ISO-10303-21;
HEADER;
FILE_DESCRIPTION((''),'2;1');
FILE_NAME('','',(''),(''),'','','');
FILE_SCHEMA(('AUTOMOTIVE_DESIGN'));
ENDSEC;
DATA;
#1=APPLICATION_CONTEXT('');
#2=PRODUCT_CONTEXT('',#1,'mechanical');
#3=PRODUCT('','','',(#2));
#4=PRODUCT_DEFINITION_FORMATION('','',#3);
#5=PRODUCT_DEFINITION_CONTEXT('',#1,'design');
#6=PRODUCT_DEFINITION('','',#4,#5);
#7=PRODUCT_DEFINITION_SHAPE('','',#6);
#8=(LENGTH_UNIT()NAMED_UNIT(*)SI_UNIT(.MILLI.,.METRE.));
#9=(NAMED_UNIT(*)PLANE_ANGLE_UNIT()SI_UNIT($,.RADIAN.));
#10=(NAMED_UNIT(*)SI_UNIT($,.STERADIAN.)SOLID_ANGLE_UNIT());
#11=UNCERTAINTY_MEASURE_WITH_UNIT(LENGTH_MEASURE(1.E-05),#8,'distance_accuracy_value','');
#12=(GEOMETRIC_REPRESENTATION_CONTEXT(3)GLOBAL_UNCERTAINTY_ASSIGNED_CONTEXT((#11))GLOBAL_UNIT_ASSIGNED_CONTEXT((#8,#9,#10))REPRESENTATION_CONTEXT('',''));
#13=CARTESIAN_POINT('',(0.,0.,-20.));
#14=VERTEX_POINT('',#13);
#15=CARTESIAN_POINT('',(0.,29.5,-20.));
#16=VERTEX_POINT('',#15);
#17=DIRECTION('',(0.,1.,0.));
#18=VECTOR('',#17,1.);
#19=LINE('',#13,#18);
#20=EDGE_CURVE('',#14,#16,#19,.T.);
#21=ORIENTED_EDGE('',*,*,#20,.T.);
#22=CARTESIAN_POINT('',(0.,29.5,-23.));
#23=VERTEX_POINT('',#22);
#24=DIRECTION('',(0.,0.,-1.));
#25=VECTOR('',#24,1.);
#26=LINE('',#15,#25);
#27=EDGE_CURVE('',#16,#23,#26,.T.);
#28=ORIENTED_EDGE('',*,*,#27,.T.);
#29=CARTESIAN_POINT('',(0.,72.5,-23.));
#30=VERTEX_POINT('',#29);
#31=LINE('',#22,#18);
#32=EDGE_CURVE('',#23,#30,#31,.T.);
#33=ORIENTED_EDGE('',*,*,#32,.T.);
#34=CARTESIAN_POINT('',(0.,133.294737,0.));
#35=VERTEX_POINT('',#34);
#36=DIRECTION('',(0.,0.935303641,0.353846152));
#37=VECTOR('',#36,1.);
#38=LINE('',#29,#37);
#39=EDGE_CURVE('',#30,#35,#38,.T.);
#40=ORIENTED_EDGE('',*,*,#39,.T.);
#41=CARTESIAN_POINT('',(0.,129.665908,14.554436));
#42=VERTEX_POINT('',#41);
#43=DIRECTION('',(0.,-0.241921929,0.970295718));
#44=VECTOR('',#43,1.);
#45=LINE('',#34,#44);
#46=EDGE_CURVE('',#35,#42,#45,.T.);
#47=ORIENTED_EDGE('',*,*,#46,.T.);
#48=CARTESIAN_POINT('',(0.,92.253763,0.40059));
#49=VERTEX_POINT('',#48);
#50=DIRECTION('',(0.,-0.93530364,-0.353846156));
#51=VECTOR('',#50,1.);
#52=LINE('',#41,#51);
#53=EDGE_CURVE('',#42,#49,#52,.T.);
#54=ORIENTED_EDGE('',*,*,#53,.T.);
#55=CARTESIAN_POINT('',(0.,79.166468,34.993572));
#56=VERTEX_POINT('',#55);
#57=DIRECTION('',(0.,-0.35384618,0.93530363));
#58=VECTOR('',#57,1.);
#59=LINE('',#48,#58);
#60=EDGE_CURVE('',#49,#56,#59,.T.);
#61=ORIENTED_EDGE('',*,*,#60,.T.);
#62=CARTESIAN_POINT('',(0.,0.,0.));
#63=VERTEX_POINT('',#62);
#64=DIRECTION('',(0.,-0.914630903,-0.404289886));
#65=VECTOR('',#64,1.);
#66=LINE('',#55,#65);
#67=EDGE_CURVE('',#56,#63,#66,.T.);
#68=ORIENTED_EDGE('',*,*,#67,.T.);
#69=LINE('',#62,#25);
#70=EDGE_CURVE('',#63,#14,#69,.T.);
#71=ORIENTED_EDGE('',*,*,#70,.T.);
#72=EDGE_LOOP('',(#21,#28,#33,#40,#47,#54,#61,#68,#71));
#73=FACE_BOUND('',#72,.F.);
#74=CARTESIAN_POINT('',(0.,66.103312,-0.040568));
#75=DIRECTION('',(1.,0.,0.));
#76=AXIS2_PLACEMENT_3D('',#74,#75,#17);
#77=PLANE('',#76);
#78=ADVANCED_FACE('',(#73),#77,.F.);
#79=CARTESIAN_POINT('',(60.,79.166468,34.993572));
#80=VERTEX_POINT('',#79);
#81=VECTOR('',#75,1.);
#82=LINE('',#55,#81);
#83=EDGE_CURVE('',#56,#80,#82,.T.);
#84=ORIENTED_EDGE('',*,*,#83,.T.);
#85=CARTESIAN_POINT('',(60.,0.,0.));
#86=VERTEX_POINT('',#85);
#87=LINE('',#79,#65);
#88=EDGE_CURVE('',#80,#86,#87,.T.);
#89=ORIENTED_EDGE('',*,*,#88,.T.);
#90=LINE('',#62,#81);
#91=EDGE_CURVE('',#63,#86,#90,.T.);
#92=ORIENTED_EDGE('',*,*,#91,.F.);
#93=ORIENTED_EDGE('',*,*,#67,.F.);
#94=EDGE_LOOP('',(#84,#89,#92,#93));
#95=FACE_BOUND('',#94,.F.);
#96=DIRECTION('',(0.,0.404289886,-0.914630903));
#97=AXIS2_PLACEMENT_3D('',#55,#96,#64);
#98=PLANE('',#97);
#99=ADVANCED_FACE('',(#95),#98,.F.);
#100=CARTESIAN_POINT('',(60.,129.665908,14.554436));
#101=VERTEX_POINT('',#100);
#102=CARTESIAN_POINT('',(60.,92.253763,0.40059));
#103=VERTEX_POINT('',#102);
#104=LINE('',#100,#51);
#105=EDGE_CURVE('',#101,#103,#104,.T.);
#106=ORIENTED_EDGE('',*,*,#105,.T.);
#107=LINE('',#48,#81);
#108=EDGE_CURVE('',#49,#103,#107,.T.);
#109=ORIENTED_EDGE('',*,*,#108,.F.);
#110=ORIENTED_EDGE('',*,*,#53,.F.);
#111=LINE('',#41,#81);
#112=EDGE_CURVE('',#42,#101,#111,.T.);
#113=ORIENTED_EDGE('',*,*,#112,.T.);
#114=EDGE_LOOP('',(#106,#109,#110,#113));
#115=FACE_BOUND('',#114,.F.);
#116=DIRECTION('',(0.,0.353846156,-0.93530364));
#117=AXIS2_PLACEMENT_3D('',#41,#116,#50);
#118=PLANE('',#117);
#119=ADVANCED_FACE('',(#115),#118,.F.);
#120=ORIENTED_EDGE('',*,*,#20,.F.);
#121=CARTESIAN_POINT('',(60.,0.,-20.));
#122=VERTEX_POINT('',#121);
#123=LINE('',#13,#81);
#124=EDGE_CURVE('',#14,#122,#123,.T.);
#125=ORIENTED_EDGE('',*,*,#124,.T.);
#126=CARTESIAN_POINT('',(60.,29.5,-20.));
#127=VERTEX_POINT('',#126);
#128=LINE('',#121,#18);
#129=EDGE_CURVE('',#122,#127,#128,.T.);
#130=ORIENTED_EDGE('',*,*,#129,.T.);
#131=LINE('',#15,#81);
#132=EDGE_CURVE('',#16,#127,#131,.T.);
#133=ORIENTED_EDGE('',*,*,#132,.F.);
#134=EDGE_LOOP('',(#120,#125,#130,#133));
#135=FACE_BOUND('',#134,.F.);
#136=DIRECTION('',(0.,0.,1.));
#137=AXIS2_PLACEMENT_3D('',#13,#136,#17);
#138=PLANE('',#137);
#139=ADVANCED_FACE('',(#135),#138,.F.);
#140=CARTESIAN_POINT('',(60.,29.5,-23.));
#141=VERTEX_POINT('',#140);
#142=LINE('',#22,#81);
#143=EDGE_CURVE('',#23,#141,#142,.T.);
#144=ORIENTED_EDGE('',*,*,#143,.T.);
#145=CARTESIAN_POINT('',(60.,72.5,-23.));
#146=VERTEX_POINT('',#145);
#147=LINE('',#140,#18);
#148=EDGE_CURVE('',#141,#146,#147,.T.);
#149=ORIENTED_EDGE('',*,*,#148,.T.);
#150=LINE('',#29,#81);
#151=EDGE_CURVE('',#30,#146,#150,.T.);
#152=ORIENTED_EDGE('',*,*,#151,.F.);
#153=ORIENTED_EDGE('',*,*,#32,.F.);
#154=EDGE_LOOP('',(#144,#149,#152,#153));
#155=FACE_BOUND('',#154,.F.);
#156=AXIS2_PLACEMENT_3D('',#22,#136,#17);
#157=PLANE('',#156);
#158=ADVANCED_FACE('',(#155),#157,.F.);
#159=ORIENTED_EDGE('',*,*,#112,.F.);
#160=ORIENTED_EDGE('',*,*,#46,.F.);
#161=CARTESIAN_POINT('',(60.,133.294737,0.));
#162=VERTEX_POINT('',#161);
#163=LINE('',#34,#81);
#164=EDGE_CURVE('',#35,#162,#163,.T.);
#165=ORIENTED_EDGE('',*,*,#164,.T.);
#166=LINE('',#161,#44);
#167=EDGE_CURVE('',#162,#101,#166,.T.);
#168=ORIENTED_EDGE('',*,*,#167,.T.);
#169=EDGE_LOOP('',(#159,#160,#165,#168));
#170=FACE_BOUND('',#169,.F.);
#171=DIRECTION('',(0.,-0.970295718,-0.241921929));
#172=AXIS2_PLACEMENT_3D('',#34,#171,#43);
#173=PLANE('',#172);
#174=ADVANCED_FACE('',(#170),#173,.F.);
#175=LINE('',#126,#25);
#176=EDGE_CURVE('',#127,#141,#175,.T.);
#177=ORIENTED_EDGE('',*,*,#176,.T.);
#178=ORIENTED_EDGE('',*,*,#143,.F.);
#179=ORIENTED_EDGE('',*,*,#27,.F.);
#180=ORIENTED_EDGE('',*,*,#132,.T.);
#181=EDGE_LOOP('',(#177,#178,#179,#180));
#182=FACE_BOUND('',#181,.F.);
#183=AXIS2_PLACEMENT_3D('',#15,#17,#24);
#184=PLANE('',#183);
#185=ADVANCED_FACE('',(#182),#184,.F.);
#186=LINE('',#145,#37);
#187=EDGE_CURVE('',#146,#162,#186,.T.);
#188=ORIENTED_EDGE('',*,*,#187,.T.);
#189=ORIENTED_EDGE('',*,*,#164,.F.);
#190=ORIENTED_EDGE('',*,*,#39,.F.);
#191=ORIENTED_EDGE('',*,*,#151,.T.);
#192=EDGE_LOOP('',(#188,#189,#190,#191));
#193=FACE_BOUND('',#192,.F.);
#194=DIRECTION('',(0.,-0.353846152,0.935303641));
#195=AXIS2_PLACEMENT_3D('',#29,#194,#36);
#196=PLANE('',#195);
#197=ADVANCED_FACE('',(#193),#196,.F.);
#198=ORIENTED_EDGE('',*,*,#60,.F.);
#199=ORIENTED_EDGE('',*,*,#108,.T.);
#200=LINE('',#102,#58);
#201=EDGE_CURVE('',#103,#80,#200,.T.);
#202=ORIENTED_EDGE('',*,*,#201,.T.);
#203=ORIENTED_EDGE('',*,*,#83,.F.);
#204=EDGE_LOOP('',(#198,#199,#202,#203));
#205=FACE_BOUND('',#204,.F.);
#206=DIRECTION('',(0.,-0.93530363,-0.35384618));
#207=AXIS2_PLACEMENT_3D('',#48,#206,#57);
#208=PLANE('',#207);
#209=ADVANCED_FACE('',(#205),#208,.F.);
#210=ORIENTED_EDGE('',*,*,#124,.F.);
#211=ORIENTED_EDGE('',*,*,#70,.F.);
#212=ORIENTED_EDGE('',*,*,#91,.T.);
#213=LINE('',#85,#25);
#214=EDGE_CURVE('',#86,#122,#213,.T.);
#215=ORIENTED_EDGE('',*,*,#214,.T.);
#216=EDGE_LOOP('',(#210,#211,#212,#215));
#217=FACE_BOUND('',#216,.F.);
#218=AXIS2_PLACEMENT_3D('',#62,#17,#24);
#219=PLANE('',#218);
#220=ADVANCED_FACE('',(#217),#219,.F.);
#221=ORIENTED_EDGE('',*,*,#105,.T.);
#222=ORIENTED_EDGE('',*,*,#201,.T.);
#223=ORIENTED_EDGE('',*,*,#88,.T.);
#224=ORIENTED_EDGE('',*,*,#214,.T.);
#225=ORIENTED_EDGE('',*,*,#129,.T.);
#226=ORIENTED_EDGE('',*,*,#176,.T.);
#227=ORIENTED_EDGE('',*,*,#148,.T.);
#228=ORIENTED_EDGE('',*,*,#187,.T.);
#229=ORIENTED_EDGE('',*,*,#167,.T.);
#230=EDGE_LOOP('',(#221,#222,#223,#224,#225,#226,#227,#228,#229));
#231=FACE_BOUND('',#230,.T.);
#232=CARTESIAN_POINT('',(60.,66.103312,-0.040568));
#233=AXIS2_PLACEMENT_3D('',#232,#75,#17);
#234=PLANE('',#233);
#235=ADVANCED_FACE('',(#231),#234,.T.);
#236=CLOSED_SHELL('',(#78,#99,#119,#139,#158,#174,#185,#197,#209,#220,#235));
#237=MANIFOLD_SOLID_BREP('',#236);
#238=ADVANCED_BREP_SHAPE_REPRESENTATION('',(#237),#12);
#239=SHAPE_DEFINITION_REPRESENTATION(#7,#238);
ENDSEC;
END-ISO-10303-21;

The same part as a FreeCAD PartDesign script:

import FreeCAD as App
import Part
import Sketcher
from FreeCAD import Vector
Q = App.Units.Quantity


def add_polygon(sketch, points):
    """Adds a closed chain of lines whose ends are joined by coincident constraints."""
    first, n = sketch.GeometryCount, len(points)
    for a, b in zip(points, points[1:] + points[:1]):
        sketch.addGeometry(Part.LineSegment(App.Vector(*a, 0), App.Vector(*b, 0)), False)
    for i in range(n):
        sketch.addConstraint(Sketcher.Constraint("Coincident", first + i, 2, first + (i + 1) % n, 1))

doc = App.newDocument("Part")
body = doc.addObject("PartDesign::Body", "Body")

# Sketch on YZ plane
sketch1 = body.newObject("Sketcher::SketchObject", "Sketch")
sketch1.AttachmentSupport = (doc.getObject("YZ_Plane"), [""])
sketch1.MapMode = "FlatFace"
add_polygon(sketch1, [(0, 0), (0, -20), (29.5, -20), (29.5, -23), (72.5, -23), (133.3, 0), (129.7, 14.6), (92.3, 0.4), (79.2, 35)])  # lines 0-8
sketch1.addConstraint([
    Sketcher.Constraint("Vertical", 0),
    Sketcher.Constraint("Horizontal", 1),
    Sketcher.Constraint("Vertical", 2),
    Sketcher.Constraint("Horizontal", 3),
    Sketcher.Constraint("Coincident", 8, 2, -1, 1),
    Sketcher.Constraint("PointOnObject", 4, 2, -1),
    Sketcher.Constraint("Parallel", 4, 6),
    Sketcher.Constraint("Perpendicular", 6, 7),
    Sketcher.Constraint("DistanceX", 3, 1, 3, 2, 43.0),
    Sketcher.Constraint("DistanceY", 0, 2, 0, 1, 20.0),
    Sketcher.Constraint("DistanceY", 2, 2, 2, 1, 3.0),
    Sketcher.Constraint("Angle", 5, Q("104.000002 deg")),
    Sketcher.Constraint("Distance", 4, 65.0),
    Sketcher.Constraint("Distance", 5, 15.0),
    Sketcher.Constraint("Distance", 6, 39.999999),
    Sketcher.Constraint("DistanceX", 1, 1, 1, 2, 29.5),
    Sketcher.Constraint("Distance", 7, 36.985831),
])
pad1 = body.newObject("PartDesign::Pad", "Pad")
pad1.Profile = sketch1
pad1.Length = 60

doc.recompute()
